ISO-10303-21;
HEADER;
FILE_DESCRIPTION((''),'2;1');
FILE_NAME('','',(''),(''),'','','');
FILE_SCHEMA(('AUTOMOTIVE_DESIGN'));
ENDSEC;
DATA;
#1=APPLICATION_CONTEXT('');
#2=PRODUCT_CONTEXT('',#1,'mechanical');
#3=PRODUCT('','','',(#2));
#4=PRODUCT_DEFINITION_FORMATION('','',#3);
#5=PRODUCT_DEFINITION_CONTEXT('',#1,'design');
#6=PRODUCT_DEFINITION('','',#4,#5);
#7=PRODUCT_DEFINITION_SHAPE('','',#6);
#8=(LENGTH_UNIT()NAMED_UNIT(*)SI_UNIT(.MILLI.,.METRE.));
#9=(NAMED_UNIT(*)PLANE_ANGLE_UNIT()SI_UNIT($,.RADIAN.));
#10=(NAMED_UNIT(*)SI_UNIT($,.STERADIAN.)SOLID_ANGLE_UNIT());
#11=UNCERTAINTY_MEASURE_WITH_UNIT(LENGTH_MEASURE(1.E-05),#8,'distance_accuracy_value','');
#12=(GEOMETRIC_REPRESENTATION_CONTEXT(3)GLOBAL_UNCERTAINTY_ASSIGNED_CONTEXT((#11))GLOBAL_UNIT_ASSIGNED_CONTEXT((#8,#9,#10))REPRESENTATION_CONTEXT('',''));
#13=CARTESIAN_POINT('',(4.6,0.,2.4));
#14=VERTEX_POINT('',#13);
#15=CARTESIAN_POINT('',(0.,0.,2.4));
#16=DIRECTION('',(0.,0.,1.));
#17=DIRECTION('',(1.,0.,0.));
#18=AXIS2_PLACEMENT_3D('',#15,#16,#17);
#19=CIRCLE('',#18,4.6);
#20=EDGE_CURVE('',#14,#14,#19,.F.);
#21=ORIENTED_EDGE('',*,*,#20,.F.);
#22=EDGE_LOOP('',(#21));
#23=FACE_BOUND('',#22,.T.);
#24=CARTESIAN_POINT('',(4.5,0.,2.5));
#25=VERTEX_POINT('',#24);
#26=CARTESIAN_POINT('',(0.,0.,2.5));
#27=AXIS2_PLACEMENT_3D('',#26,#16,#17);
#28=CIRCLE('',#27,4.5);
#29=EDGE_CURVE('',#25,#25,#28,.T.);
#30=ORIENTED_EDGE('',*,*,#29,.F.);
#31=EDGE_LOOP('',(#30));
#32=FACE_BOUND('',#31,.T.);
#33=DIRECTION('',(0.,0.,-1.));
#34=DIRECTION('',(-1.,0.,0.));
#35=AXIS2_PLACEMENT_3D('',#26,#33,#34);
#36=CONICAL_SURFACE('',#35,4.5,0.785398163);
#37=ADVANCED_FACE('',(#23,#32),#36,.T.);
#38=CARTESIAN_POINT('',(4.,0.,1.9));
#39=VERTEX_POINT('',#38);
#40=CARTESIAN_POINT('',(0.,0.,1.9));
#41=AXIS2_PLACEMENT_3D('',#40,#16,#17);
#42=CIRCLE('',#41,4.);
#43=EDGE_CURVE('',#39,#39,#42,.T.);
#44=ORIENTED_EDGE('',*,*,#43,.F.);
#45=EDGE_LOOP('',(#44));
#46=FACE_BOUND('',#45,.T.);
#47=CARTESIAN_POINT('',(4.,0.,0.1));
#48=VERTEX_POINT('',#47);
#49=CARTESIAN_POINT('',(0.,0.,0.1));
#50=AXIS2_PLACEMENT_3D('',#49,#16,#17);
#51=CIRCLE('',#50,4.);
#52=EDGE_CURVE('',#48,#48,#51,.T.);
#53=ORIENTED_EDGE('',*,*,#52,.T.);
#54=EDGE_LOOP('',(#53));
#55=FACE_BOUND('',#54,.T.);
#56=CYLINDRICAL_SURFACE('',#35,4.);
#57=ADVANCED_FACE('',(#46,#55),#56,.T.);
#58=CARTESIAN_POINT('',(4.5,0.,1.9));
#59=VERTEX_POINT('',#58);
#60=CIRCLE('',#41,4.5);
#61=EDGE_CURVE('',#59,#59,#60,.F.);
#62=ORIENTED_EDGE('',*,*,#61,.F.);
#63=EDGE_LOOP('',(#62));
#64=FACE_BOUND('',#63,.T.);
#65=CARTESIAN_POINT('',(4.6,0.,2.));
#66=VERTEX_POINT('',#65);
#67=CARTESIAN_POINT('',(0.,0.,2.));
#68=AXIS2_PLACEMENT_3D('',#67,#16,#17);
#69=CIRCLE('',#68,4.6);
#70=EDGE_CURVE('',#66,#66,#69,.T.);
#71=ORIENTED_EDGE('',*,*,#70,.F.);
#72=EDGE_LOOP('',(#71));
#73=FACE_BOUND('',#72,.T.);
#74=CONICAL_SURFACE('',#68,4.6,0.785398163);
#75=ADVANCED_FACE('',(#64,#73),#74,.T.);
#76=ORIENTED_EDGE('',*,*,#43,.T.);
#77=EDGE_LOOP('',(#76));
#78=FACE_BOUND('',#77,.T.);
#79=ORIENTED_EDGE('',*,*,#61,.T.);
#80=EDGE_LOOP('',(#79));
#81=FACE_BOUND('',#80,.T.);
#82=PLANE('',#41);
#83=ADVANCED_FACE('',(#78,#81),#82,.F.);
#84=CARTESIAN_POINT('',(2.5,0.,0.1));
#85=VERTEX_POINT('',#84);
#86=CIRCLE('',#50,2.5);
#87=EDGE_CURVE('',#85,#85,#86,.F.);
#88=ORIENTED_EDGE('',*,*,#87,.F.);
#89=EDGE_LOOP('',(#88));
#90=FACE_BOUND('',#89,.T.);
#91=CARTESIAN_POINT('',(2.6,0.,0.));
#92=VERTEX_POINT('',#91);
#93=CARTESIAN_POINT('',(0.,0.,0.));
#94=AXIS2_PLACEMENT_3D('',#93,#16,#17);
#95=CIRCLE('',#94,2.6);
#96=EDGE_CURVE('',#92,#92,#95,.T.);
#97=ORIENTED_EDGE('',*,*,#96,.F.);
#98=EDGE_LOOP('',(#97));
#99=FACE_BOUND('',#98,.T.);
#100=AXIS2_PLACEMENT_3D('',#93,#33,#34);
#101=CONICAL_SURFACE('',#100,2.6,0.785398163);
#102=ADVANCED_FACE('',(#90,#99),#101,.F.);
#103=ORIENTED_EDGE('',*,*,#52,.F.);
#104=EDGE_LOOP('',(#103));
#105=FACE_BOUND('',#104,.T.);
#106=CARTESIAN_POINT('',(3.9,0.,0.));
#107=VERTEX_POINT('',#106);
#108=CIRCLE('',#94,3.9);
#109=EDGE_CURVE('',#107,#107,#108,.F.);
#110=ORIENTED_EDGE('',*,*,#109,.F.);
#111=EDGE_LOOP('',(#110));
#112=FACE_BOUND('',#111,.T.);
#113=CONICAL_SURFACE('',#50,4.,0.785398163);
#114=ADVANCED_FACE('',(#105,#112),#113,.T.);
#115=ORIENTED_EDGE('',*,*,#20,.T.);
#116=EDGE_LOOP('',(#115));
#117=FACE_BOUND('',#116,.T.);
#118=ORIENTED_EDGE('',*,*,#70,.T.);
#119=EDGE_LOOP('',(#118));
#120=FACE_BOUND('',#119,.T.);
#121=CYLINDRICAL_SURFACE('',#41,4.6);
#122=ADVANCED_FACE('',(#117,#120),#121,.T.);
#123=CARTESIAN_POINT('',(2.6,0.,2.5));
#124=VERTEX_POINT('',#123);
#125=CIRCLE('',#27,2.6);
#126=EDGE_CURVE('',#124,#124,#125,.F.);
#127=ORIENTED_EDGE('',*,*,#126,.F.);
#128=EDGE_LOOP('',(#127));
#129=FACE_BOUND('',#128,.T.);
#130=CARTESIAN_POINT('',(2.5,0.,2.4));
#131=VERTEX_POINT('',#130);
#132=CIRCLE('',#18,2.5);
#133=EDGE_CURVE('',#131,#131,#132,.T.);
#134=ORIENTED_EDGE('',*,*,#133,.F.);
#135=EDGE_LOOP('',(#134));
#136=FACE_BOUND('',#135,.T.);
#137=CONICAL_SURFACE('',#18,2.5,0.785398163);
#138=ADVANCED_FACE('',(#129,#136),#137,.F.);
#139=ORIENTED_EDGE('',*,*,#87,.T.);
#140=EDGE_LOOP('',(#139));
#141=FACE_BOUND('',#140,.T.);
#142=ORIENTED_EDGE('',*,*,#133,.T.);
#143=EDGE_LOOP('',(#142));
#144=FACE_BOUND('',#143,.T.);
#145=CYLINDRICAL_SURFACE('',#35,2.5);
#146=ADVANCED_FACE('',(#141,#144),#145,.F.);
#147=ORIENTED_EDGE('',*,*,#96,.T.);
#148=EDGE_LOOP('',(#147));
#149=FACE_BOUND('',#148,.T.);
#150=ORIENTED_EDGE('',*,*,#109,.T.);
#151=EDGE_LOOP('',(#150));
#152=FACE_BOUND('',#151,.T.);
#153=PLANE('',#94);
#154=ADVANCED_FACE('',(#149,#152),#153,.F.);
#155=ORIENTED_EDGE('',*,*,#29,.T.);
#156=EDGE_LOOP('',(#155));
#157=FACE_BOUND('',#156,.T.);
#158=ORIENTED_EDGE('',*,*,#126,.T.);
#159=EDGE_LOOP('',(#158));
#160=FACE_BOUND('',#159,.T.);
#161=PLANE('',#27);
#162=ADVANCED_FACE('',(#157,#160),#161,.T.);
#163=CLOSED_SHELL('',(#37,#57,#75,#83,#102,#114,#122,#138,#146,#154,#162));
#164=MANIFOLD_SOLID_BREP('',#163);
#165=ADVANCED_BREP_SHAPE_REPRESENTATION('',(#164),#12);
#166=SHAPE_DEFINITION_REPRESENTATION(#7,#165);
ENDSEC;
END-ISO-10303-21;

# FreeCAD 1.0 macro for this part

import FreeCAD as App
import Part
import Sketcher
Q = App.Units.Quantity


def edges_at(feature, points):
    """Names of the edges that pass closest to the given points."""
    edges = feature.Shape.Edges
    near = lambda p: min(range(len(edges)), key=lambda i: edges[i].distToShape(Part.Vertex(*p))[0])
    return sorted({f"Edge{near(p) + 1}" for p in points})

doc = App.newDocument("Part")
body = doc.addObject("PartDesign::Body", "Body")

# Sketch on XY plane
sketch1 = body.newObject("Sketcher::SketchObject", "Sketch")
sketch1.AttachmentSupport = (doc.getObject("XY_Plane"), [""])
sketch1.MapMode = "FlatFace"
sketch1.addGeometry(Part.Circle(App.Vector(0, 0, 0), App.Vector(0, 0, 1), 4), False)
sketch1.addGeometry(Part.Circle(App.Vector(0, 0, 0), App.Vector(0, 0, 1), 2.5), False)
sketch1.addConstraint(Sketcher.Constraint("Coincident", 0, 3, -1, 1))
sketch1.addConstraint(Sketcher.Constraint("Coincident", 1, 3, -1, 1))
sketch1.addConstraint(Sketcher.Constraint("Diameter", 0, Q("8 mm")))
sketch1.addConstraint(Sketcher.Constraint("Diameter", 1, Q("5 mm")))
pad1 = body.newObject("PartDesign::Pad", "Pad")
pad1.Profile = sketch1
pad1.Length = 2.5

# Sketch on XY plane
sketch2 = body.newObject("Sketcher::SketchObject", "Sketch001")
sketch2.AttachmentSupport = (doc.getObject("XY_Plane"), [""])
sketch2.MapMode = "FlatFace"
sketch2.AttachmentOffset = App.Placement(App.Vector(0, 0, 1.9), App.Rotation())
sketch2.addGeometry(Part.Circle(App.Vector(0, 0, 0), App.Vector(0, 0, 1), 4.6), False)
sketch2.addGeometry(Part.Circle(App.Vector(0, 0, 0), App.Vector(0, 0, 1), 4), False)
sketch2.addConstraint(Sketcher.Constraint("Coincident", 0, 3, -1, 1))
sketch2.addConstraint(Sketcher.Constraint("Coincident", 1, 3, -1, 1))
sketch2.addConstraint(Sketcher.Constraint("Diameter", 1, Q("8 mm")))
sketch2.addConstraint(Sketcher.Constraint("Diameter", 0, Q("9.2 mm")))
pad2 = body.newObject("PartDesign::Pad", "Pad001")
pad2.Profile = sketch2
pad2.Length = 0.6
doc.recompute()

chamfer = body.newObject("PartDesign::Chamfer", "Chamfer")
chamfer.Base = (pad2, edges_at(pad2, [
    (-4.6, 0, 1.9),
    (-4.6, 0, 2.5),
    (-4, 0, 0),
    (-2.5, 0, 0),
    (-2.5, 0, 2.5),
]))
chamfer.Size = 0.1

doc.recompute()
